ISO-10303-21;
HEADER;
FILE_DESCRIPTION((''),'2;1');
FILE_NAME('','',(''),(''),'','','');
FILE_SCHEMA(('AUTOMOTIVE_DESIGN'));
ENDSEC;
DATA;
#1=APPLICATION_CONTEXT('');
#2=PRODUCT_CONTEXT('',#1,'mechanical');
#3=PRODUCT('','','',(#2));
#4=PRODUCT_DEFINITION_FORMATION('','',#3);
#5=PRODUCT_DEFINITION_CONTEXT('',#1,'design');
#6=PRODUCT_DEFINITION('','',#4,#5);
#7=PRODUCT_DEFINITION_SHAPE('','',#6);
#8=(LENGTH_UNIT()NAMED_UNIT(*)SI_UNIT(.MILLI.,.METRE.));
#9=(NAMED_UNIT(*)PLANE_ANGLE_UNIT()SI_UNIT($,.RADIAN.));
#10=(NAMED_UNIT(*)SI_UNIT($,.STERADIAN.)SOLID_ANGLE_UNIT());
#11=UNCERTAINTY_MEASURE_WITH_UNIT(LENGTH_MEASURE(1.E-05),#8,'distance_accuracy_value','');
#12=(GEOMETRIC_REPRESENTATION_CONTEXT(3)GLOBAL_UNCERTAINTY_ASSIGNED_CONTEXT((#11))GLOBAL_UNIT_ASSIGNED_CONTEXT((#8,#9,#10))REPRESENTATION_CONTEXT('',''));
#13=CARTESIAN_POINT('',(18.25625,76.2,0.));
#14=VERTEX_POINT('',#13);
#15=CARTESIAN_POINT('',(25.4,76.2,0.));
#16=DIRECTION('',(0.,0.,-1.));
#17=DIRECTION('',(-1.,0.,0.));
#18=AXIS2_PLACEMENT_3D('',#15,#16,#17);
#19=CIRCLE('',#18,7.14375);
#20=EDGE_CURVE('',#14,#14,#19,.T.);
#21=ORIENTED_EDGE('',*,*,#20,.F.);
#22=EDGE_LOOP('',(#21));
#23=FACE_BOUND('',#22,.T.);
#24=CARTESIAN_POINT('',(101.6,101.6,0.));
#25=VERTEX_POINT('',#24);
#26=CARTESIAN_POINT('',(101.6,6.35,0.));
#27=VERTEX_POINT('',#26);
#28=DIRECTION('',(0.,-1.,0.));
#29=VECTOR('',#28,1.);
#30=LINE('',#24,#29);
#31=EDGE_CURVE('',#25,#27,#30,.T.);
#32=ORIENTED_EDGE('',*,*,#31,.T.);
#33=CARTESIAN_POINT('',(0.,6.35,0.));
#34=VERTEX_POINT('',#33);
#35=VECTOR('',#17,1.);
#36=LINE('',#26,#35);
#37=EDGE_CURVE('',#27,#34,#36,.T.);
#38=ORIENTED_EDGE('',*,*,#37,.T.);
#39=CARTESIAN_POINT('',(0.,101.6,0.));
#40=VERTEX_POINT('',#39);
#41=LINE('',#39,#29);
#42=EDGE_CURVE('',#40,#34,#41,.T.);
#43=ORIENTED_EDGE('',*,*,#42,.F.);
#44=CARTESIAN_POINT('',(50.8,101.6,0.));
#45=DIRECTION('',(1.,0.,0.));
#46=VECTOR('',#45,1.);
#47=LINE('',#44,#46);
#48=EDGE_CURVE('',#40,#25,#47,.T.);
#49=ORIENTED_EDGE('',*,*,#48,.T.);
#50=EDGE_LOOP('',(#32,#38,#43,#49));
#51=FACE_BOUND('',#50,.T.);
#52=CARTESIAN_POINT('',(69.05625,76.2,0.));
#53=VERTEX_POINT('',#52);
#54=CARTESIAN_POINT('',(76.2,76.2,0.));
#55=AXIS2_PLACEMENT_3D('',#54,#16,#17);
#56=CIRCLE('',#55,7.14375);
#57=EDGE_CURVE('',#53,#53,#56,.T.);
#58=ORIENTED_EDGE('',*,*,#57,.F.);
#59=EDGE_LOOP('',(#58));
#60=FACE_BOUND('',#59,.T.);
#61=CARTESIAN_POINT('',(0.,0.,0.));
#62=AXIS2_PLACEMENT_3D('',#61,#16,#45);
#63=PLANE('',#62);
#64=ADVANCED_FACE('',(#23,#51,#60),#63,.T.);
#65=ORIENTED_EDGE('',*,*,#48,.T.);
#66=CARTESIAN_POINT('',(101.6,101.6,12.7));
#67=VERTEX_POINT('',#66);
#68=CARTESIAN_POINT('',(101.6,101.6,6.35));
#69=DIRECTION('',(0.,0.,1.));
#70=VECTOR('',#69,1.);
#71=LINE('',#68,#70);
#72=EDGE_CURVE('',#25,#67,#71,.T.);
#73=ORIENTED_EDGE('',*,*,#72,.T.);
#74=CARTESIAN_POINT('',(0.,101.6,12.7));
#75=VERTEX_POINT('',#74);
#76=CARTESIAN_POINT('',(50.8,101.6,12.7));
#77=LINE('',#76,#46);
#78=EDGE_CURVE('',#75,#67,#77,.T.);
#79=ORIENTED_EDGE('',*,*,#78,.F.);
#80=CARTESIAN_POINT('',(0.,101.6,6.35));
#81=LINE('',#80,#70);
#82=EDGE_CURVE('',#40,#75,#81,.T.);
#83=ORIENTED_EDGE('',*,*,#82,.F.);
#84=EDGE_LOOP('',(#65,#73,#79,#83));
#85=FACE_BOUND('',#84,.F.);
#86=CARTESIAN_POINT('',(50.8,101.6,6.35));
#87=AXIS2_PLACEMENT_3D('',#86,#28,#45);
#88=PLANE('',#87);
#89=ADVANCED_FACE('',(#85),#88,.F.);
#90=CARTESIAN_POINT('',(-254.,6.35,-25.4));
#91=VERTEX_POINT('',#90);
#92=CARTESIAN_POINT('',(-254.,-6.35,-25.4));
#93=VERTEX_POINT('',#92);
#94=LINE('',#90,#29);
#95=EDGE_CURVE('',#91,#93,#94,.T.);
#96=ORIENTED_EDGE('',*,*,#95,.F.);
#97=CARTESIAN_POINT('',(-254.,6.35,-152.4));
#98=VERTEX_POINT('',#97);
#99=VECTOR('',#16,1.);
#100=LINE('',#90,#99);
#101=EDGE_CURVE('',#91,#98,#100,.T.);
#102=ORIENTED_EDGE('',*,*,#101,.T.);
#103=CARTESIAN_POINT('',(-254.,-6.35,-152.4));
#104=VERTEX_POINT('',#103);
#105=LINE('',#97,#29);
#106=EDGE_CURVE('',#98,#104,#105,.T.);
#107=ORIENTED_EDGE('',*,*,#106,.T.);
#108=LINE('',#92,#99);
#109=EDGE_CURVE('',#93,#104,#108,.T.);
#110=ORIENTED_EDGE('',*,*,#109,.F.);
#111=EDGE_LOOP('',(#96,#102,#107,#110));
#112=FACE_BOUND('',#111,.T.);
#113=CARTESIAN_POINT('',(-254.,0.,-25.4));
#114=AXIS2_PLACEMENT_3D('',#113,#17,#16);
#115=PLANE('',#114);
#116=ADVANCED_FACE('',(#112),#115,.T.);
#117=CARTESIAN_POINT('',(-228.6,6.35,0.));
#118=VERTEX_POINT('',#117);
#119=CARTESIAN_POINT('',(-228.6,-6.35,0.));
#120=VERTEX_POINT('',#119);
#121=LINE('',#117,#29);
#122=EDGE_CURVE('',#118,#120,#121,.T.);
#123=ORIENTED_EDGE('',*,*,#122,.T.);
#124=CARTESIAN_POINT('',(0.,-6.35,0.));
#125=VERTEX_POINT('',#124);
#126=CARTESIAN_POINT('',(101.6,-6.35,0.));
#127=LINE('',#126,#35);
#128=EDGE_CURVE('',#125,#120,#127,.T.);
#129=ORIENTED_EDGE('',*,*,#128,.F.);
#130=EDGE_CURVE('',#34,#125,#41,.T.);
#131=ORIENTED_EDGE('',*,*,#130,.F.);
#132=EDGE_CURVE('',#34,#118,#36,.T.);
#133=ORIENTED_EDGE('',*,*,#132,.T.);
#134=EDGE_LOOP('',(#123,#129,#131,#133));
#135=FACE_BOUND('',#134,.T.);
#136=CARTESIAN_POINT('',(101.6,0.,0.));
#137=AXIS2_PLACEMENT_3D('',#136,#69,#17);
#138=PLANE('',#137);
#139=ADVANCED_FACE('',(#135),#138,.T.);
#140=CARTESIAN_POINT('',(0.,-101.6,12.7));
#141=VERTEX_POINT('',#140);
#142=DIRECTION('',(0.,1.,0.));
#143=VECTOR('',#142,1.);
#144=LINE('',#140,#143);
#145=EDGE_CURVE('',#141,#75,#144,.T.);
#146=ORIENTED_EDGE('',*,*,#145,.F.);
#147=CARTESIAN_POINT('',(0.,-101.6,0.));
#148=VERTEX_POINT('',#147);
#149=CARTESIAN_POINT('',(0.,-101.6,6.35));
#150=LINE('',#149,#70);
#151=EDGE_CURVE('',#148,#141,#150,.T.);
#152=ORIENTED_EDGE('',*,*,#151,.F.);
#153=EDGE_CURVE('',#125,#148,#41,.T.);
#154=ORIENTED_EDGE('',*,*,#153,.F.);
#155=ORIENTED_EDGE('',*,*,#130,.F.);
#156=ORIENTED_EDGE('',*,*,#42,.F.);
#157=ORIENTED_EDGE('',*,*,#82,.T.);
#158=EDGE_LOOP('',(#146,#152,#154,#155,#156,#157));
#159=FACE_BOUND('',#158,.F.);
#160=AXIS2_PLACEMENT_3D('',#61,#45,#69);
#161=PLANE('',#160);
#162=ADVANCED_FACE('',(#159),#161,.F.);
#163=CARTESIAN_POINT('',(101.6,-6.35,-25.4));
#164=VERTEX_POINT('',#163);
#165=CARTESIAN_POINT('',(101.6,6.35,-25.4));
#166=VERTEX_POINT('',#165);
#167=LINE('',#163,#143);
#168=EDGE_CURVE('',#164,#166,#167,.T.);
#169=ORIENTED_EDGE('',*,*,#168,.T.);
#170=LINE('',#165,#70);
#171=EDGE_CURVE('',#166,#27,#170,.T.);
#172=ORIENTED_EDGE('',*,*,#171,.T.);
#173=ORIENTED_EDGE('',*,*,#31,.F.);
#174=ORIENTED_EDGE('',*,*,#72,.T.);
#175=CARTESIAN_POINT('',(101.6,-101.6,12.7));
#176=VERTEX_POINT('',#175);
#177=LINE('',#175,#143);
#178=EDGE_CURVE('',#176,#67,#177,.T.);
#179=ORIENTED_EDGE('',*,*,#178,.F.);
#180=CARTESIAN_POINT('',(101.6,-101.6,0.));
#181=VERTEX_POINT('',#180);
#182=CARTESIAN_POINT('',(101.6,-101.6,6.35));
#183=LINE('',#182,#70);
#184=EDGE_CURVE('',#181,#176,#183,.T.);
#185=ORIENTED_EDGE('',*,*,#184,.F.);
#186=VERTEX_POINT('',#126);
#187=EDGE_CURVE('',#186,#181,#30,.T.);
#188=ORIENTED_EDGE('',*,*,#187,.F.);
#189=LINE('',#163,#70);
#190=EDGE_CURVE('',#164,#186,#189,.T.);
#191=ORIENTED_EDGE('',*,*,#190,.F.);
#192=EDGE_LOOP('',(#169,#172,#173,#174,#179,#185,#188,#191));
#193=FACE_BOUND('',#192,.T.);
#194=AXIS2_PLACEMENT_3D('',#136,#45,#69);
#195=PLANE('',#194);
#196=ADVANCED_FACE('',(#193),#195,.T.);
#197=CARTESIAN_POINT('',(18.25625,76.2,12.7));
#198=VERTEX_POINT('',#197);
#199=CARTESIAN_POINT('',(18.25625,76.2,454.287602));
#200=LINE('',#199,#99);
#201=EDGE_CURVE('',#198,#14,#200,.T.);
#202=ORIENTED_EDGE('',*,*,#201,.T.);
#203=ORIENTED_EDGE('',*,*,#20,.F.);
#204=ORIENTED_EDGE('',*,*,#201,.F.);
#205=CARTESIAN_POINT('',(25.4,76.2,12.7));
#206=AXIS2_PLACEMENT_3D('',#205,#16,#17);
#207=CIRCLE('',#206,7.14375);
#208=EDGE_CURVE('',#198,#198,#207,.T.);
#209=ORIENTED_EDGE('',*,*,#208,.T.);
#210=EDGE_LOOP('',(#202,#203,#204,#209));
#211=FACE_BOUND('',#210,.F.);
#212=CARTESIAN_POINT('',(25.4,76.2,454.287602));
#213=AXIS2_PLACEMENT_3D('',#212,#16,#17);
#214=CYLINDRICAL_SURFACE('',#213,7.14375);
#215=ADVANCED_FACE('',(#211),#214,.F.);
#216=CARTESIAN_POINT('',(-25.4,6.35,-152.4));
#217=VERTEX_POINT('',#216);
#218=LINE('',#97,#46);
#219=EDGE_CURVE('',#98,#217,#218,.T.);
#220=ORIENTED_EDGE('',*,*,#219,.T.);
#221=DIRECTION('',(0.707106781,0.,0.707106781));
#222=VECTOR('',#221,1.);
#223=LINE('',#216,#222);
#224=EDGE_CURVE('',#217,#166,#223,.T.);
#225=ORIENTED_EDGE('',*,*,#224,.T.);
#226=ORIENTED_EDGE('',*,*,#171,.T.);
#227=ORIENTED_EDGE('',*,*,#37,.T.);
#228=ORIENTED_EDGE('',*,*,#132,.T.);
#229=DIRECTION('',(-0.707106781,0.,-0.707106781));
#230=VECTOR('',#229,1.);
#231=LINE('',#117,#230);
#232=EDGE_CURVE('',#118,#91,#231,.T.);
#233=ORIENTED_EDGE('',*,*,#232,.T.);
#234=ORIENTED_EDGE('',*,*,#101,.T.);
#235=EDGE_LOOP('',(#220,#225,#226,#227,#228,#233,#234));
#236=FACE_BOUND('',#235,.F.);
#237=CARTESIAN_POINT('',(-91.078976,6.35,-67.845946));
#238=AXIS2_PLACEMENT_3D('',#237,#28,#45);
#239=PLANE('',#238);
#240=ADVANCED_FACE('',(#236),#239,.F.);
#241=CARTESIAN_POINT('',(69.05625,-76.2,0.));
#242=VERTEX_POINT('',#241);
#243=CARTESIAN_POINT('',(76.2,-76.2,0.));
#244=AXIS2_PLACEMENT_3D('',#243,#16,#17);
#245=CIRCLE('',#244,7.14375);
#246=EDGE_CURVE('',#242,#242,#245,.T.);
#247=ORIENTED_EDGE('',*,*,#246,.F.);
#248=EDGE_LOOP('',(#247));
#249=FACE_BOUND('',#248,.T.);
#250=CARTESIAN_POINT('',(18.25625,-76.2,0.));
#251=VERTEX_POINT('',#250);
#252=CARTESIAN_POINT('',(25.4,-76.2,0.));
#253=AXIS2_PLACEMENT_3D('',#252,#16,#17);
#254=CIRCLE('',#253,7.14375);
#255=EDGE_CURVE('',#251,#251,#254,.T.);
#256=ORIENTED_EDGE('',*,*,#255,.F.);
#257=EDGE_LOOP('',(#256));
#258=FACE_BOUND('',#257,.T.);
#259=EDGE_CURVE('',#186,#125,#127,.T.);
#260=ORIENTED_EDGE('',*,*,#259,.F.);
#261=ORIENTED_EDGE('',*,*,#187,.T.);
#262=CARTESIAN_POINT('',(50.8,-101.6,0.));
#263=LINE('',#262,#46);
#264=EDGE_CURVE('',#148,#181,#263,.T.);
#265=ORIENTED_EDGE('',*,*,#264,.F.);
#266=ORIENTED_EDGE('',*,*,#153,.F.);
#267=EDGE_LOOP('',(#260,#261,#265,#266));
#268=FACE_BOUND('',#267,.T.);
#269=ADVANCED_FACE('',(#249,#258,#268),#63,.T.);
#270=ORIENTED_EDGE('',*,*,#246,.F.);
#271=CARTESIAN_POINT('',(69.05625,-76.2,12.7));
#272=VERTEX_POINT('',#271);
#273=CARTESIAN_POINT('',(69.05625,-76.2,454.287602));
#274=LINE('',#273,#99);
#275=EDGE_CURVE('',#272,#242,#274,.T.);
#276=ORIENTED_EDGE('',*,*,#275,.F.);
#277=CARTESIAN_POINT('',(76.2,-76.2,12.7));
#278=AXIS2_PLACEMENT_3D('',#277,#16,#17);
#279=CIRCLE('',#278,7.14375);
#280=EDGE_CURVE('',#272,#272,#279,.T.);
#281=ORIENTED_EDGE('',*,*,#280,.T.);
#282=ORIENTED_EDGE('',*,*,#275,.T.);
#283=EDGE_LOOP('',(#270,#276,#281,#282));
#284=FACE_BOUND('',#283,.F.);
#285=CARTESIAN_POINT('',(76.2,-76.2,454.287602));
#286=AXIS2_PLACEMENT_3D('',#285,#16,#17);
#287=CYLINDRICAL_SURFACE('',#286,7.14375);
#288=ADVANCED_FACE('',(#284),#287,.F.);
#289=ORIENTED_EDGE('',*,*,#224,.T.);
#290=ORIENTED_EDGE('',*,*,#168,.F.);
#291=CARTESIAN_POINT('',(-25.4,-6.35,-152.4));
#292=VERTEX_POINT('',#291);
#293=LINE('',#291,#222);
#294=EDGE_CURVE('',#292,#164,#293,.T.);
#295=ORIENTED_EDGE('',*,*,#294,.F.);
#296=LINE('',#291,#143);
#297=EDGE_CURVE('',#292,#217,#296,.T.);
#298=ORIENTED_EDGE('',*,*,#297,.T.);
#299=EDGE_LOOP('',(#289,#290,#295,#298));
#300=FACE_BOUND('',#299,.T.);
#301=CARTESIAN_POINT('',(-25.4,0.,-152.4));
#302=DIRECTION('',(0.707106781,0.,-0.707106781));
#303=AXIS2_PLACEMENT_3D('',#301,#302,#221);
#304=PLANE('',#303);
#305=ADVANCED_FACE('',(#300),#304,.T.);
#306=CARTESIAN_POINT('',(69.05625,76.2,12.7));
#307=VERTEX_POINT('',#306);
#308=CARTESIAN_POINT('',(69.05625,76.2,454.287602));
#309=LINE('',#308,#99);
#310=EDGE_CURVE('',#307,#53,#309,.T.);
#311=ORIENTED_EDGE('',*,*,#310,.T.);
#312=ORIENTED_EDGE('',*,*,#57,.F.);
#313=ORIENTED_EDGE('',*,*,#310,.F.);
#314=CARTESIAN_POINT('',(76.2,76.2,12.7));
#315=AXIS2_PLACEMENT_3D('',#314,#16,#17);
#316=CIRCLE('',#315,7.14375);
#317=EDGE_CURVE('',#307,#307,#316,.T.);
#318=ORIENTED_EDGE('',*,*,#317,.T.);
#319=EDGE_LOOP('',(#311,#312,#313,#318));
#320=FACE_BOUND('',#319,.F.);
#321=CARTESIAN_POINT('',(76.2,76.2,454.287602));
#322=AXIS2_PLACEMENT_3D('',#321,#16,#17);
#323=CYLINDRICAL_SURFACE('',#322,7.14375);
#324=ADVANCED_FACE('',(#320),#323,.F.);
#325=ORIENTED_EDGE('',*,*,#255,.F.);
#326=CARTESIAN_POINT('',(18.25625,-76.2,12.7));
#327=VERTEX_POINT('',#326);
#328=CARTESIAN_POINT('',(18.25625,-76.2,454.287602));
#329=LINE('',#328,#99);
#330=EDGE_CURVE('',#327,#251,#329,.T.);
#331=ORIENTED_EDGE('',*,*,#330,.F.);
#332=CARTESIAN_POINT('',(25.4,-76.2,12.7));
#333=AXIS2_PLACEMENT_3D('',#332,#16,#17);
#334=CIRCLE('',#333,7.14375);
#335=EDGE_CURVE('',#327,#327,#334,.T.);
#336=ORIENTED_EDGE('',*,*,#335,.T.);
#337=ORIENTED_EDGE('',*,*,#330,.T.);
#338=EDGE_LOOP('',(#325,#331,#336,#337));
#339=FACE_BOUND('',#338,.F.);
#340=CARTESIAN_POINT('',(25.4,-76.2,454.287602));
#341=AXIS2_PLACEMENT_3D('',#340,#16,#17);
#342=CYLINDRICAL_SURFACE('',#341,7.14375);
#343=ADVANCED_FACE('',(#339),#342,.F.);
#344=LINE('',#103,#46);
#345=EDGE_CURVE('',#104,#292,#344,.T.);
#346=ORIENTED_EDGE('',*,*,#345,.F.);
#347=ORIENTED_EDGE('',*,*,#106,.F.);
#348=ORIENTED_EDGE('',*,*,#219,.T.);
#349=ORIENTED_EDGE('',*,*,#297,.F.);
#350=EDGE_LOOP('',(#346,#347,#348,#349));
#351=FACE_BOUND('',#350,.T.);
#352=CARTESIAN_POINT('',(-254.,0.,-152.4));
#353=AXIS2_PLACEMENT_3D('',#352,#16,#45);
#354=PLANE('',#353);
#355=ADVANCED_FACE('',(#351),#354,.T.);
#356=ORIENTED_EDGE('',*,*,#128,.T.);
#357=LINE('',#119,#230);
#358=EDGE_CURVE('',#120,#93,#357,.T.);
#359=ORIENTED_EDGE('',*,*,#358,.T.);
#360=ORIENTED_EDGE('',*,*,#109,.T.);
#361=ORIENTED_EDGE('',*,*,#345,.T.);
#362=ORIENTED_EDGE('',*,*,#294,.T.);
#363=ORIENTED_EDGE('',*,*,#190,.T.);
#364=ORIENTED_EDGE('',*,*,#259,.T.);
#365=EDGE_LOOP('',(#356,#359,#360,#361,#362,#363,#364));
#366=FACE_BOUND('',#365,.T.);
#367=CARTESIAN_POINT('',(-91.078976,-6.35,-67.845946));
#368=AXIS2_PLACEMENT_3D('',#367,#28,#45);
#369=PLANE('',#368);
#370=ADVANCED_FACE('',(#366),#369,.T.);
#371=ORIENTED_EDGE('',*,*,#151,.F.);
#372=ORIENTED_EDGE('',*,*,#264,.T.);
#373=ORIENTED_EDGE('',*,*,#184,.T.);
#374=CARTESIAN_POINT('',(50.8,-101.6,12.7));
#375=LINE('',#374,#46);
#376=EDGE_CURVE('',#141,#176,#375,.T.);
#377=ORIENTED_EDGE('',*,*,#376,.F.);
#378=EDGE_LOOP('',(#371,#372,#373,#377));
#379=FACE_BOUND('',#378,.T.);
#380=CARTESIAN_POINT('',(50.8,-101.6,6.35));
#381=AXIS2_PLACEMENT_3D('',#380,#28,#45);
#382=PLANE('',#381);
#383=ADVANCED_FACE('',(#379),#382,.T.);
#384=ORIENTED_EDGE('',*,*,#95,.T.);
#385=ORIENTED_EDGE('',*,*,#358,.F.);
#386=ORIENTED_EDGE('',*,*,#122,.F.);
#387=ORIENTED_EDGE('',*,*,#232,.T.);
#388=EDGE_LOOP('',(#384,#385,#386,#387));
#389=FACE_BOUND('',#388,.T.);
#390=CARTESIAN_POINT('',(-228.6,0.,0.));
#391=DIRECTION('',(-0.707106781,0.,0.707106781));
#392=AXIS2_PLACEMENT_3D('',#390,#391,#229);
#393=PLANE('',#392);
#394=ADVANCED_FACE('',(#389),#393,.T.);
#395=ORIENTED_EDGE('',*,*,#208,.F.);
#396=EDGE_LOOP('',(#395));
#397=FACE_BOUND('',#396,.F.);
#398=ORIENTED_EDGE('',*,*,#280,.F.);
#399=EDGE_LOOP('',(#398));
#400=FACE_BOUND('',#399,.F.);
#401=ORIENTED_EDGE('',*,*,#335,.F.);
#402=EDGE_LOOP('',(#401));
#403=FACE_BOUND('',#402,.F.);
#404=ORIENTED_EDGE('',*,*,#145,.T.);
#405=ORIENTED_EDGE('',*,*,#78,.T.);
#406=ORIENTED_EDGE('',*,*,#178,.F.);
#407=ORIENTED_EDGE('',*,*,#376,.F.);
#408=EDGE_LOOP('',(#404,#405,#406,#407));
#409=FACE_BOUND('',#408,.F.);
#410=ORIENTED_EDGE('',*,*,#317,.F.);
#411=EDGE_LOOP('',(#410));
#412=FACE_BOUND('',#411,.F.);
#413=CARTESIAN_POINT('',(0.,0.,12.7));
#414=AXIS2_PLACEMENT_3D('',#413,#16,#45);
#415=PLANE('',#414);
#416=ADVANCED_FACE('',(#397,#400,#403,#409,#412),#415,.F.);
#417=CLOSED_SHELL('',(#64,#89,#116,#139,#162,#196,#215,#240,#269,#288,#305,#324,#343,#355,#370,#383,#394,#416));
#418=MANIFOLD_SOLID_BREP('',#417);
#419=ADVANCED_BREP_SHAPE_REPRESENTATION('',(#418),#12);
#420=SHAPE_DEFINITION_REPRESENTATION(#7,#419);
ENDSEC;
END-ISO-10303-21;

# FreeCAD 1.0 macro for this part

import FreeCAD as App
import Part
import Sketcher

V = App.Vector
Q = App.Units.Quantity

doc = App.newDocument("Part")
body = doc.addObject("PartDesign::Body", "Body")

sketch1 = doc.addObject("Sketcher::SketchObject", "Sketch")
body.addObject(sketch1)
sketch1.AttachmentSupport = (doc.XZ_Plane, [""])
sketch1.MapMode = "FlatFace"
sketch1.addGeometry(Part.LineSegment(V(102, 0, 0), V(-229, 0, 0)), False)
sketch1.addGeometry(Part.LineSegment(V(-229, 0, 0), V(-254, -25, 0)), False)
sketch1.addGeometry(Part.LineSegment(V(-254, -25, 0), V(-254, -152, 0)), False)
sketch1.addGeometry(Part.LineSegment(V(-254, -152, 0), V(-25, -152, 0)), False)
sketch1.addGeometry(Part.LineSegment(V(-25, -152, 0), V(102, -25, 0)), False)
sketch1.addGeometry(Part.LineSegment(V(102, -25, 0), V(102, 0, 0)), False)
sketch1.addConstraint(Sketcher.Constraint("Coincident", 0, 2, 1, 1))
sketch1.addConstraint(Sketcher.Constraint("Coincident", 1, 2, 2, 1))
sketch1.addConstraint(Sketcher.Constraint("Coincident", 2, 2, 3, 1))
sketch1.addConstraint(Sketcher.Constraint("Coincident", 3, 2, 4, 1))
sketch1.addConstraint(Sketcher.Constraint("Coincident", 4, 2, 5, 1))
sketch1.addConstraint(Sketcher.Constraint("Coincident", 5, 2, 0, 1))
sketch1.addConstraint(Sketcher.Constraint("Horizontal", 0))
sketch1.addConstraint(Sketcher.Constraint("Vertical", 2))
sketch1.addConstraint(Sketcher.Constraint("Horizontal", 3))
sketch1.addConstraint(Sketcher.Constraint("Vertical", 5))
sketch1.addConstraint(Sketcher.Constraint("PointOnObject", 0, 2, -1))
sketch1.addConstraint(Sketcher.Constraint("Parallel", 1, 4))
sketch1.addConstraint(Sketcher.Constraint("Horizontal", 1, 2, 4, 2))
sketch1.addConstraint(Sketcher.Constraint("DistanceX", 0, 2, 0, 1, Q("13 in")))
sketch1.addConstraint(Sketcher.Constraint("DistanceX", 3, 1, 3, 2, Q("9 in")))
sketch1.addConstraint(Sketcher.Constraint("DistanceY", 2, 2, 2, 1, Q("5 in")))
sketch1.addConstraint(Sketcher.Constraint("DistanceY", 5, 1, 5, 2, Q("1 in")))
sketch1.addConstraint(Sketcher.Constraint("DistanceX", 0, 2, -1, 1, Q("9 in")))
pad1 = doc.addObject("PartDesign::Pad", "Pad")
body.addObject(pad1)
pad1.Profile = sketch1
pad1.Length = Q("0.5 in")
pad1.Midplane = True

sketch2 = doc.addObject("Sketcher::SketchObject", "Sketch001")
body.addObject(sketch2)
sketch2.AttachmentSupport = (doc.XZ_Plane, [""])
sketch2.MapMode = "FlatFace"
sketch2.addGeometry(Part.LineSegment(V(0, 13, 0), V(0, 0, 0)), False)
sketch2.addGeometry(Part.LineSegment(V(0, 0, 0), V(102, 0, 0)), False)
sketch2.addGeometry(Part.LineSegment(V(102, 0, 0), V(102, 13, 0)), False)
sketch2.addGeometry(Part.LineSegment(V(102, 13, 0), V(0, 13, 0)), False)
sketch2.addConstraint(Sketcher.Constraint("Coincident", 0, 2, 1, 1))
sketch2.addConstraint(Sketcher.Constraint("Coincident", 1, 2, 2, 1))
sketch2.addConstraint(Sketcher.Constraint("Coincident", 2, 2, 3, 1))
sketch2.addConstraint(Sketcher.Constraint("Coincident", 3, 2, 0, 1))
sketch2.addConstraint(Sketcher.Constraint("Vertical", 0))
sketch2.addConstraint(Sketcher.Constraint("Horizontal", 1))
sketch2.addConstraint(Sketcher.Constraint("Vertical", 2))
sketch2.addConstraint(Sketcher.Constraint("Horizontal", 3))
sketch2.addConstraint(Sketcher.Constraint("Coincident", 0, 2, -1, 1))
sketch2.addConstraint(Sketcher.Constraint("DistanceX", 1, 1, 1, 2, Q("4 in")))
sketch2.addConstraint(Sketcher.Constraint("DistanceY", 0, 2, 0, 1, Q("0.5 in")))
pad2 = doc.addObject("PartDesign::Pad", "Pad001")
body.addObject(pad2)
pad2.Profile = sketch2
pad2.Length = Q("8 in")
pad2.Midplane = True

sketch3 = doc.addObject("Sketcher::SketchObject", "Sketch002")
body.addObject(sketch3)
sketch3.AttachmentSupport = (doc.XY_Plane, [""])
sketch3.MapMode = "FlatFace"
sketch3.AttachmentOffset = App.Placement(V(0, 0, 0.5 * 25.4), App.Rotation())
sketch3.addGeometry(Part.Circle(V(25, 76, 0), V(0, 0, 1), 7), False)
sketch3.addGeometry(Part.Circle(V(76, 76, 0), V(0, 0, 1), 7), False)
sketch3.addGeometry(Part.Circle(V(76, -76, 0), V(0, 0, 1), 7), False)
sketch3.addGeometry(Part.Circle(V(25, -76, 0), V(0, 0, 1), 7), False)
sketch3.addConstraint(Sketcher.Constraint("Equal", 0, 1))
sketch3.addConstraint(Sketcher.Constraint("Equal", 1, 2))
sketch3.addConstraint(Sketcher.Constraint("Equal", 2, 3))
sketch3.addConstraint(Sketcher.Constraint("Symmetric", 1, 3, 2, 3, -1))
sketch3.addConstraint(Sketcher.Constraint("Symmetric", 0, 3, 3, 3, -1))
sketch3.addConstraint(Sketcher.Constraint("Horizontal", 0, 3, 1, 3))
sketch3.addConstraint(Sketcher.Constraint("Diameter", 0, Q("0.5625 in")))
sketch3.addConstraint(Sketcher.Constraint("DistanceX", -1, 1, 0, 3, Q("1 in")))
sketch3.addConstraint(Sketcher.Constraint("DistanceY", -1, 1, 0, 3, Q("3 in")))
sketch3.addConstraint(Sketcher.Constraint("DistanceX", -1, 1, 1, 3, Q("3 in")))
doc.recompute()
hole = doc.addObject("PartDesign::Hole", "Hole")
body.addObject(hole)
hole.Profile = sketch3
hole.ThreadType = "None"
hole.Diameter = Q("0.5625 in")
hole.DepthType = "ThroughAll"

doc.recompute()
